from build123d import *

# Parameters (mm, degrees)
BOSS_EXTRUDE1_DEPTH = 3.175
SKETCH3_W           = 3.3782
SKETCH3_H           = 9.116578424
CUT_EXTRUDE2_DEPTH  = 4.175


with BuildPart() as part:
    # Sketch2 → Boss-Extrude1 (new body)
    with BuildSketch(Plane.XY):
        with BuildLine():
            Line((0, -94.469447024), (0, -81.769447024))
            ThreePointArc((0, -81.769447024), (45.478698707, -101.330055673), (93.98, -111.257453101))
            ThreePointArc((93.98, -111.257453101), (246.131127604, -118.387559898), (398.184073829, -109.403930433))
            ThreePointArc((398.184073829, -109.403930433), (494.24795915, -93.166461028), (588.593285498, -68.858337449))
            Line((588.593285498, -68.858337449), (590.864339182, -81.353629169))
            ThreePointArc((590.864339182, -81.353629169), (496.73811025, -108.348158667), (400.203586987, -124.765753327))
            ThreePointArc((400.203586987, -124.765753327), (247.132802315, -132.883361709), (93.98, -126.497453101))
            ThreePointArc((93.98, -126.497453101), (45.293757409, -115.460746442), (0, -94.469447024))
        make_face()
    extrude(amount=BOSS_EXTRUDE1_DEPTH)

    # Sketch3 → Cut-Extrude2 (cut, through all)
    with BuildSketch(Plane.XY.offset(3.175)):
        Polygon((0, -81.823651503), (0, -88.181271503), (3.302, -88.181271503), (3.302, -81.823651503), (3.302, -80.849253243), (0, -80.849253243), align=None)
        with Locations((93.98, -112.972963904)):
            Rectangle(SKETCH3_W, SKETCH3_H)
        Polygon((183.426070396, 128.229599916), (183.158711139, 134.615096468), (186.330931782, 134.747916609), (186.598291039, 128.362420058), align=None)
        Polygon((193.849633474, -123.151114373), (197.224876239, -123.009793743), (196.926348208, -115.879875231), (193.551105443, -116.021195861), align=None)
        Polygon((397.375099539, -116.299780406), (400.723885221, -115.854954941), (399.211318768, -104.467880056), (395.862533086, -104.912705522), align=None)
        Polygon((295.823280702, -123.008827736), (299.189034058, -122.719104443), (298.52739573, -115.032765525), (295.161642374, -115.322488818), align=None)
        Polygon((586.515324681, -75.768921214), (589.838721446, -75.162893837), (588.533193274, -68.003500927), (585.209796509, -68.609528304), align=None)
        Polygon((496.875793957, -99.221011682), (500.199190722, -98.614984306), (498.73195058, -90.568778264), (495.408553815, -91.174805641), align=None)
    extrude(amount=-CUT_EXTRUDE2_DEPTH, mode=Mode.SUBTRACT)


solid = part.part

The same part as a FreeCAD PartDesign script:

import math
import FreeCAD as App
import Part
import Sketcher
from FreeCAD import Vector
Q = App.Units.Quantity

doc = App.newDocument("Part")
body = doc.addObject("PartDesign::Body", "Body")

sketch1 = body.newObject("Sketcher::SketchObject", "Sketch")
sketch1.AttachmentSupport = (doc.getObject("XY_Plane"), [""])
sketch1.MapMode = "FlatFace"
sketch1.addGeometry(Part.LineSegment(Vector(0, -82, 0), Vector(0, -94, 0)), False)
sketch1.addGeometry(Part.ArcOfCircle(Part.Circle(Vector(122, 109, 0), Vector(0, 0, 1), 237), math.radians(-121), math.radians(-97)), False)
sketch1.addGeometry(Part.ArcOfCircle(Part.Circle(Vector(238, 1487, 0), Vector(0, 0, 1), 1620), math.radians(-95.1), math.radians(-84.25)), False)
sketch1.addGeometry(Part.ArcOfCircle(Part.Circle(Vector(300, 754, 0), Vector(0, 0, 1), 884), math.radians(-83.52), math.radians(-70.82)), False)
sketch1.addGeometry(Part.LineSegment(Vector(591, -81, 0), Vector(589, -69, 0)), False)
sketch1.addGeometry(Part.ArcOfCircle(Part.Circle(Vector(255, 1032, 0), Vector(0, 0, 1), 1150), math.radians(-82.83), math.radians(-73.12)), False)
sketch1.addGeometry(Part.ArcOfCircle(Part.Circle(Vector(237, 1321, 0), Vector(0, 0, 1), 1440), math.radians(-95.72), math.radians(-83.59)), False)
sketch1.addGeometry(Part.ArcOfCircle(Part.Circle(Vector(118, 130, 0), Vector(0, 0, 1), 243), math.radians(-119), math.radians(-96)), False)
sketch1.addConstraint(Sketcher.Constraint("Coincident", 0, 2, 1, 1))
sketch1.addConstraint(Sketcher.Constraint("Coincident", 1, 2, 2, 1))
sketch1.addConstraint(Sketcher.Constraint("Coincident", 2, 2, 3, 1))
sketch1.addConstraint(Sketcher.Constraint("Coincident", 3, 2, 4, 1))
sketch1.addConstraint(Sketcher.Constraint("Coincident", 4, 2, 5, 2))
sketch1.addConstraint(Sketcher.Constraint("Coincident", 5, 1, 6, 2))
sketch1.addConstraint(Sketcher.Constraint("Tangent", 6, 1, 7, 2))
sketch1.addConstraint(Sketcher.Constraint("Coincident", 7, 1, 0, 1))
sketch1.addConstraint(Sketcher.Constraint("Vertical", 0))
sketch1.addConstraint(Sketcher.Constraint("PointOnObject", 0, 2, -2))
sketch1.addConstraint(Sketcher.Constraint("Vertical", 1, 2, 6, 1))
sketch1.addConstraint(Sketcher.Constraint("Radius", 3, Q("34.8 in")))
sketch1.addConstraint(Sketcher.Constraint("DistanceY", 0, 2, 0, 1, Q("0.5 in")))
sketch1.addConstraint(Sketcher.Constraint("Distance", 4, Q("0.5 in")))
sketch1.addConstraint(Sketcher.Constraint("DistanceX", -1, 1, 1, 2, Q("3.7 in")))
sketch1.addConstraint(Sketcher.Constraint("DistanceY", 1, 2, 6, 1, Q("0.6 in")))
sketch1.addConstraint(Sketcher.Constraint("Radius", 1, 236.96956))
sketch1.addConstraint(Sketcher.Constraint("Radius", 2, 1620.03361))
sketch1.addConstraint(Sketcher.Constraint("Radius", 5, 1150.31332))
sketch1.addConstraint(Sketcher.Constraint("Radius", 6, 1439.788577))
sketch1.addConstraint(Sketcher.Constraint("Radius", 7, 242.755675))
sketch1.addConstraint(Sketcher.Constraint("DistanceX", 7, 3, 2, 2, Q("11.1043001 in")))
sketch1.addConstraint(Sketcher.Constraint("DistanceX", 5, 3, 3, 3, 45.825899))
sketch1.addConstraint(Sketcher.Constraint("DistanceX", 1, 3, 6, 3, 115.623698))
sketch1.addConstraint(Sketcher.Constraint("DistanceY", 5, 1, 3, 2, 28.050301))
sketch1.addConstraint(Sketcher.Constraint("DistanceX", -1, 1, 2, 3, 237.97163))
sketch1.addConstraint(Sketcher.Constraint("DistanceX", -1, 1, 3, 3, 300.49835))
sketch1.addConstraint(Sketcher.Constraint("DistanceY", -1, 1, 5, 3, 1031.922118))
sketch1.addConstraint(Sketcher.Constraint("DistanceY", -1, 1, 6, 3, 1321.374292))
pad1 = body.newObject("PartDesign::Pad", "Pad")
pad1.Profile = sketch1
pad1.Length = Q("0.125 in")

sketch2 = body.newObject("Sketcher::SketchObject", "Sketch001")
sketch2.AttachmentSupport = (doc.getObject("XY_Plane"), [""])
sketch2.MapMode = "FlatFace"
sketch2.AttachmentOffset = App.Placement(Vector(0, 0, 0.125 * 25.4), App.Rotation())
sketch2.addGeometry(Part.LineSegment(Vector(0, -88.181272, 0), Vector(3.302, -88.181272, 0)), False)
sketch2.addGeometry(Part.LineSegment(Vector(3.302, -88.181272, 0), Vector(3.302, -80.849253, 0)), False)
sketch2.addGeometry(Part.LineSegment(Vector(3.302, -80.849253, 0), Vector(0, -80.849253, 0)), False)
sketch2.addGeometry(Part.LineSegment(Vector(0, -80.849253, 0), Vector(0, -88.181272, 0)), False)
sketch2.addGeometry(Part.LineSegment(Vector(92.2909, -108.414675, 0), Vector(92.2909, -117.531253, 0)), False)
sketch2.addGeometry(Part.LineSegment(Vector(92.2909, -117.531253, 0), Vector(95.6691, -117.531253, 0)), False)
sketch2.addGeometry(Part.LineSegment(Vector(95.6691, -117.531253, 0), Vector(95.6691, -108.414675, 0)), False)
sketch2.addGeometry(Part.LineSegment(Vector(95.6691, -108.414675, 0), Vector(92.2909, -108.414675, 0)), False)
sketch2.addGeometry(Part.LineSegment(Vector(183.158711, 134.615096, 0), Vector(183.42607, 128.2296, 0)), False)
sketch2.addGeometry(Part.LineSegment(Vector(183.42607, 128.2296, 0), Vector(186.598291, 128.36242, 0)), False)
sketch2.addGeometry(Part.LineSegment(Vector(186.598291, 128.36242, 0), Vector(186.330932, 134.747917, 0)), False)
sketch2.addGeometry(Part.LineSegment(Vector(186.330932, 134.747917, 0), Vector(183.158711, 134.615096, 0)), False)
sketch2.addGeometry(Part.LineSegment(Vector(193.849633, -123.151114, 0), Vector(197.224876, -123.009794, 0)), False)
sketch2.addGeometry(Part.LineSegment(Vector(197.224876, -123.009794, 0), Vector(196.926348, -115.879875, 0)), False)
sketch2.addGeometry(Part.LineSegment(Vector(196.926348, -115.879875, 0), Vector(193.551105, -116.021196, 0)), False)
sketch2.addGeometry(Part.LineSegment(Vector(193.551105, -116.021196, 0), Vector(193.849633, -123.151114, 0)), False)
sketch2.addGeometry(Part.LineSegment(Vector(397.3751, -116.29978, 0), Vector(400.723885, -115.854955, 0)), False)
sketch2.addGeometry(Part.LineSegment(Vector(400.723885, -115.854955, 0), Vector(399.211319, -104.46788, 0)), False)
sketch2.addGeometry(Part.LineSegment(Vector(399.211319, -104.46788, 0), Vector(395.862533, -104.912706, 0)), False)
sketch2.addGeometry(Part.LineSegment(Vector(395.862533, -104.912706, 0), Vector(397.3751, -116.29978, 0)), False)
sketch2.addGeometry(Part.LineSegment(Vector(295.823281, -123.008828, 0), Vector(299.189034, -122.719104, 0)), False)
sketch2.addGeometry(Part.LineSegment(Vector(299.189034, -122.719104, 0), Vector(298.527396, -115.032766, 0)), False)
sketch2.addGeometry(Part.LineSegment(Vector(298.527396, -115.032766, 0), Vector(295.161642, -115.322489, 0)), False)
sketch2.addGeometry(Part.LineSegment(Vector(295.161642, -115.322489, 0), Vector(295.823281, -123.008828, 0)), False)
sketch2.addGeometry(Part.LineSegment(Vector(586.515325, -75.768921, 0), Vector(589.838721, -75.162894, 0)), False)
sketch2.addGeometry(Part.LineSegment(Vector(589.838721, -75.162894, 0), Vector(588.533193, -68.003501, 0)), False)
sketch2.addGeometry(Part.LineSegment(Vector(588.533193, -68.003501, 0), Vector(585.209797, -68.609528, 0)), False)
sketch2.addGeometry(Part.LineSegment(Vector(585.209797, -68.609528, 0), Vector(586.515325, -75.768921, 0)), False)
sketch2.addGeometry(Part.LineSegment(Vector(496.875794, -99.221012, 0), Vector(500.199191, -98.614984, 0)), False)
sketch2.addGeometry(Part.LineSegment(Vector(500.199191, -98.614984, 0), Vector(498.731951, -90.568778, 0)), False)
sketch2.addGeometry(Part.LineSegment(Vector(498.731951, -90.568778, 0), Vector(495.408554, -91.174806, 0)), False)
sketch2.addGeometry(Part.LineSegment(Vector(495.408554, -91.174806, 0), Vector(496.875794, -99.221012, 0)), False)
sketch2.addConstraint(Sketcher.Constraint("Coincident", 0, 2, 1, 1))
sketch2.addConstraint(Sketcher.Constraint("Coincident", 1, 2, 2, 1))
sketch2.addConstraint(Sketcher.Constraint("Coincident", 2, 2, 3, 1))
sketch2.addConstraint(Sketcher.Constraint("Coincident", 3, 2, 0, 1))
sketch2.addConstraint(Sketcher.Constraint("Coincident", 4, 2, 5, 1))
sketch2.addConstraint(Sketcher.Constraint("Coincident", 5, 2, 6, 1))
sketch2.addConstraint(Sketcher.Constraint("Coincident", 6, 2, 7, 1))
sketch2.addConstraint(Sketcher.Constraint("Coincident", 7, 2, 4, 1))
sketch2.addConstraint(Sketcher.Constraint("Coincident", 8, 2, 9, 1))
sketch2.addConstraint(Sketcher.Constraint("Coincident", 9, 2, 10, 1))
sketch2.addConstraint(Sketcher.Constraint("Coincident", 10, 2, 11, 1))
sketch2.addConstraint(Sketcher.Constraint("Coincident", 11, 2, 8, 1))
sketch2.addConstraint(Sketcher.Constraint("Coincident", 12, 2, 13, 1))
sketch2.addConstraint(Sketcher.Constraint("Coincident", 13, 2, 14, 1))
sketch2.addConstraint(Sketcher.Constraint("Coincident", 14, 2, 15, 1))
sketch2.addConstraint(Sketcher.Constraint("Coincident", 15, 2, 12, 1))
sketch2.addConstraint(Sketcher.Constraint("Coincident", 16, 2, 17, 1))
sketch2.addConstraint(Sketcher.Constraint("Coincident", 17, 2, 18, 1))
sketch2.addConstraint(Sketcher.Constraint("Coincident", 18, 2, 19, 1))
sketch2.addConstraint(Sketcher.Constraint("Coincident", 19, 2, 16, 1))
sketch2.addConstraint(Sketcher.Constraint("Coincident", 20, 2, 21, 1))
sketch2.addConstraint(Sketcher.Constraint("Coincident", 21, 2, 22, 1))
sketch2.addConstraint(Sketcher.Constraint("Coincident", 22, 2, 23, 1))
sketch2.addConstraint(Sketcher.Constraint("Coincident", 23, 2, 20, 1))
sketch2.addConstraint(Sketcher.Constraint("Coincident", 24, 2, 25, 1))
sketch2.addConstraint(Sketcher.Constraint("Coincident", 25, 2, 26, 1))
sketch2.addConstraint(Sketcher.Constraint("Coincident", 26, 2, 27, 1))
sketch2.addConstraint(Sketcher.Constraint("Coincident", 27, 2, 24, 1))
sketch2.addConstraint(Sketcher.Constraint("Coincident", 28, 2, 29, 1))
sketch2.addConstraint(Sketcher.Constraint("Coincident", 29, 2, 30, 1))
sketch2.addConstraint(Sketcher.Constraint("Coincident", 30, 2, 31, 1))
sketch2.addConstraint(Sketcher.Constraint("Coincident", 31, 2, 28, 1))
sketch2.addConstraint(Sketcher.Constraint("Horizontal", 0))
sketch2.addConstraint(Sketcher.Constraint("Vertical", 1))
sketch2.addConstraint(Sketcher.Constraint("Horizontal", 2))
sketch2.addConstraint(Sketcher.Constraint("Vertical", 3))
sketch2.addConstraint(Sketcher.Constraint("Vertical", 4))
sketch2.addConstraint(Sketcher.Constraint("Horizontal", 5))
sketch2.addConstraint(Sketcher.Constraint("Vertical", 6))
sketch2.addConstraint(Sketcher.Constraint("Horizontal", 7))
sketch2.addConstraint(Sketcher.Constraint("PointOnObject", 2, 2, -2))
sketch2.addConstraint(Sketcher.Constraint("Perpendicular", 8, 9))
sketch2.addConstraint(Sketcher.Constraint("Perpendicular", 9, 10))
sketch2.addConstraint(Sketcher.Constraint("Perpendicular", 10, 11))
sketch2.addConstraint(Sketcher.Constraint("Parallel", 11, 12))
sketch2.addConstraint(Sketcher.Constraint("Perpendicular", 12, 13))
sketch2.addConstraint(Sketcher.Constraint("Perpendicular", 13, 14))
sketch2.addConstraint(Sketcher.Constraint("Perpendicular", 14, 15))
sketch2.addConstraint(Sketcher.Constraint("Perpendicular", 16, 17))
sketch2.addConstraint(Sketcher.Constraint("Perpendicular", 17, 18))
sketch2.addConstraint(Sketcher.Constraint("Perpendicular", 18, 19))
sketch2.addConstraint(Sketcher.Constraint("Perpendicular", 20, 21))
sketch2.addConstraint(Sketcher.Constraint("Perpendicular", 21, 22))
sketch2.addConstraint(Sketcher.Constraint("Perpendicular", 22, 23))
sketch2.addConstraint(Sketcher.Constraint("Perpendicular", 24, 25))
sketch2.addConstraint(Sketcher.Constraint("Perpendicular", 25, 26))
sketch2.addConstraint(Sketcher.Constraint("Perpendicular", 26, 27))
sketch2.addConstraint(Sketcher.Constraint("Perpendicular", 27, 28))
sketch2.addConstraint(Sketcher.Constraint("Perpendicular", 28, 29))
sketch2.addConstraint(Sketcher.Constraint("Perpendicular", 29, 30))
sketch2.addConstraint(Sketcher.Constraint("Perpendicular", 30, 31))
sketch2.addConstraint(Sketcher.Constraint("Equal", 14, 16))
sketch2.addConstraint(Sketcher.Constraint("Equal", 18, 20))
sketch2.addConstraint(Sketcher.Constraint("Equal", 22, 24))
sketch2.addConstraint(Sketcher.Constraint("Equal", 26, 28))
sketch2.addConstraint(Sketcher.Constraint("DistanceX", 0, 1, 0, 2, Q("0.13 in")))
sketch2.addConstraint(Sketcher.Constraint("DistanceX", 5, 1, 5, 2, Q("0.133 in")))
sketch2.addConstraint(Sketcher.Constraint("Distance", 9, Q("0.125 in")))
sketch2.addConstraint(Sketcher.Constraint("Distance", 12, Q("0.133 in")))
sketch2.addConstraint(Sketcher.Constraint("DistanceX", -1, 1, 4, 2, Q("3.6335 in")))
sketch2.addConstraint(Sketcher.Constraint("DistanceY", 13, 2, -1, 1, Q("4.5621998 in")))
sketch2.addConstraint(Sketcher.Constraint("DistanceY", 29, 2, -1, 1, Q("3.5656999 in")))
sketch2.addConstraint(Sketcher.Constraint("DistanceY", 1, 1, 1, 2, 7.332018))
sketch2.addConstraint(Sketcher.Constraint("DistanceY", 4, 2, 4, 1, 9.116578))
sketch2.addConstraint(Sketcher.Constraint("DistanceY", -1, 1, 8, 2, 128.2296))
sketch2.addConstraint(Sketcher.Constraint("DistanceX", -1, 1, 19, 2, 397.3751))
sketch2.addConstraint(Sketcher.Constraint("DistanceY", 25, 2, -1, 1, 68.003501))
sketch2.addConstraint(Sketcher.Constraint("DistanceY", 4, 2, 1, 2, 36.682))
sketch2.addConstraint(Sketcher.Constraint("DistanceY", 13, 2, 6, 2, 7.465201))
sketch2.addConstraint(Sketcher.Constraint("DistanceY", 5, 2, 16, 2, 1.676298))
sketch2.addConstraint(Sketcher.Constraint("DistanceY", 19, 2, 17, 2, 11.8319))
sketch2.addConstraint(Sketcher.Constraint("DistanceX", 20, 2, 18, 2, 96.673499))
sketch2.addConstraint(Sketcher.Constraint("DistanceY", 20, 2, 18, 2, 17.806399))
sketch2.addConstraint(Sketcher.Constraint("Distance", 8, 6.391091))
sketch2.addConstraint(Sketcher.Constraint("Distance", 29, 8.178889))
sketch2.addConstraint(Sketcher.Constraint("DistanceX", -1, 1, 8, 2, 183.42607))
sketch2.addConstraint(Sketcher.Constraint("DistanceX", -1, 1, 9, 2, 186.598291))
sketch2.addConstraint(Sketcher.Constraint("DistanceX", -1, 1, 13, 2, 196.926348))
sketch2.addConstraint(Sketcher.Constraint("DistanceX", -1, 1, 17, 2, 399.211319))
sketch2.addConstraint(Sketcher.Constraint("DistanceY", 22, 2, -1, 1, 115.322489))
sketch2.addConstraint(Sketcher.Constraint("DistanceX", -1, 1, 23, 2, 295.823281))
sketch2.addConstraint(Sketcher.Constraint("DistanceX", -1, 1, 24, 2, 589.838721))
sketch2.addConstraint(Sketcher.Constraint("DistanceY", 26, 2, -1, 1, 68.609528))
sketch2.addConstraint(Sketcher.Constraint("DistanceY", 27, 2, -1, 1, 75.768921))
sketch2.addConstraint(Sketcher.Constraint("DistanceX", -1, 1, 28, 2, 500.199191))
sketch2.addConstraint(Sketcher.Constraint("DistanceY", 12, 2, 5, 2, 5.478541))
pocket1 = body.newObject("PartDesign::Pocket", "Pocket")
pocket1.Profile = sketch2
pocket1.Type = "ThroughAll"

doc.recompute()
